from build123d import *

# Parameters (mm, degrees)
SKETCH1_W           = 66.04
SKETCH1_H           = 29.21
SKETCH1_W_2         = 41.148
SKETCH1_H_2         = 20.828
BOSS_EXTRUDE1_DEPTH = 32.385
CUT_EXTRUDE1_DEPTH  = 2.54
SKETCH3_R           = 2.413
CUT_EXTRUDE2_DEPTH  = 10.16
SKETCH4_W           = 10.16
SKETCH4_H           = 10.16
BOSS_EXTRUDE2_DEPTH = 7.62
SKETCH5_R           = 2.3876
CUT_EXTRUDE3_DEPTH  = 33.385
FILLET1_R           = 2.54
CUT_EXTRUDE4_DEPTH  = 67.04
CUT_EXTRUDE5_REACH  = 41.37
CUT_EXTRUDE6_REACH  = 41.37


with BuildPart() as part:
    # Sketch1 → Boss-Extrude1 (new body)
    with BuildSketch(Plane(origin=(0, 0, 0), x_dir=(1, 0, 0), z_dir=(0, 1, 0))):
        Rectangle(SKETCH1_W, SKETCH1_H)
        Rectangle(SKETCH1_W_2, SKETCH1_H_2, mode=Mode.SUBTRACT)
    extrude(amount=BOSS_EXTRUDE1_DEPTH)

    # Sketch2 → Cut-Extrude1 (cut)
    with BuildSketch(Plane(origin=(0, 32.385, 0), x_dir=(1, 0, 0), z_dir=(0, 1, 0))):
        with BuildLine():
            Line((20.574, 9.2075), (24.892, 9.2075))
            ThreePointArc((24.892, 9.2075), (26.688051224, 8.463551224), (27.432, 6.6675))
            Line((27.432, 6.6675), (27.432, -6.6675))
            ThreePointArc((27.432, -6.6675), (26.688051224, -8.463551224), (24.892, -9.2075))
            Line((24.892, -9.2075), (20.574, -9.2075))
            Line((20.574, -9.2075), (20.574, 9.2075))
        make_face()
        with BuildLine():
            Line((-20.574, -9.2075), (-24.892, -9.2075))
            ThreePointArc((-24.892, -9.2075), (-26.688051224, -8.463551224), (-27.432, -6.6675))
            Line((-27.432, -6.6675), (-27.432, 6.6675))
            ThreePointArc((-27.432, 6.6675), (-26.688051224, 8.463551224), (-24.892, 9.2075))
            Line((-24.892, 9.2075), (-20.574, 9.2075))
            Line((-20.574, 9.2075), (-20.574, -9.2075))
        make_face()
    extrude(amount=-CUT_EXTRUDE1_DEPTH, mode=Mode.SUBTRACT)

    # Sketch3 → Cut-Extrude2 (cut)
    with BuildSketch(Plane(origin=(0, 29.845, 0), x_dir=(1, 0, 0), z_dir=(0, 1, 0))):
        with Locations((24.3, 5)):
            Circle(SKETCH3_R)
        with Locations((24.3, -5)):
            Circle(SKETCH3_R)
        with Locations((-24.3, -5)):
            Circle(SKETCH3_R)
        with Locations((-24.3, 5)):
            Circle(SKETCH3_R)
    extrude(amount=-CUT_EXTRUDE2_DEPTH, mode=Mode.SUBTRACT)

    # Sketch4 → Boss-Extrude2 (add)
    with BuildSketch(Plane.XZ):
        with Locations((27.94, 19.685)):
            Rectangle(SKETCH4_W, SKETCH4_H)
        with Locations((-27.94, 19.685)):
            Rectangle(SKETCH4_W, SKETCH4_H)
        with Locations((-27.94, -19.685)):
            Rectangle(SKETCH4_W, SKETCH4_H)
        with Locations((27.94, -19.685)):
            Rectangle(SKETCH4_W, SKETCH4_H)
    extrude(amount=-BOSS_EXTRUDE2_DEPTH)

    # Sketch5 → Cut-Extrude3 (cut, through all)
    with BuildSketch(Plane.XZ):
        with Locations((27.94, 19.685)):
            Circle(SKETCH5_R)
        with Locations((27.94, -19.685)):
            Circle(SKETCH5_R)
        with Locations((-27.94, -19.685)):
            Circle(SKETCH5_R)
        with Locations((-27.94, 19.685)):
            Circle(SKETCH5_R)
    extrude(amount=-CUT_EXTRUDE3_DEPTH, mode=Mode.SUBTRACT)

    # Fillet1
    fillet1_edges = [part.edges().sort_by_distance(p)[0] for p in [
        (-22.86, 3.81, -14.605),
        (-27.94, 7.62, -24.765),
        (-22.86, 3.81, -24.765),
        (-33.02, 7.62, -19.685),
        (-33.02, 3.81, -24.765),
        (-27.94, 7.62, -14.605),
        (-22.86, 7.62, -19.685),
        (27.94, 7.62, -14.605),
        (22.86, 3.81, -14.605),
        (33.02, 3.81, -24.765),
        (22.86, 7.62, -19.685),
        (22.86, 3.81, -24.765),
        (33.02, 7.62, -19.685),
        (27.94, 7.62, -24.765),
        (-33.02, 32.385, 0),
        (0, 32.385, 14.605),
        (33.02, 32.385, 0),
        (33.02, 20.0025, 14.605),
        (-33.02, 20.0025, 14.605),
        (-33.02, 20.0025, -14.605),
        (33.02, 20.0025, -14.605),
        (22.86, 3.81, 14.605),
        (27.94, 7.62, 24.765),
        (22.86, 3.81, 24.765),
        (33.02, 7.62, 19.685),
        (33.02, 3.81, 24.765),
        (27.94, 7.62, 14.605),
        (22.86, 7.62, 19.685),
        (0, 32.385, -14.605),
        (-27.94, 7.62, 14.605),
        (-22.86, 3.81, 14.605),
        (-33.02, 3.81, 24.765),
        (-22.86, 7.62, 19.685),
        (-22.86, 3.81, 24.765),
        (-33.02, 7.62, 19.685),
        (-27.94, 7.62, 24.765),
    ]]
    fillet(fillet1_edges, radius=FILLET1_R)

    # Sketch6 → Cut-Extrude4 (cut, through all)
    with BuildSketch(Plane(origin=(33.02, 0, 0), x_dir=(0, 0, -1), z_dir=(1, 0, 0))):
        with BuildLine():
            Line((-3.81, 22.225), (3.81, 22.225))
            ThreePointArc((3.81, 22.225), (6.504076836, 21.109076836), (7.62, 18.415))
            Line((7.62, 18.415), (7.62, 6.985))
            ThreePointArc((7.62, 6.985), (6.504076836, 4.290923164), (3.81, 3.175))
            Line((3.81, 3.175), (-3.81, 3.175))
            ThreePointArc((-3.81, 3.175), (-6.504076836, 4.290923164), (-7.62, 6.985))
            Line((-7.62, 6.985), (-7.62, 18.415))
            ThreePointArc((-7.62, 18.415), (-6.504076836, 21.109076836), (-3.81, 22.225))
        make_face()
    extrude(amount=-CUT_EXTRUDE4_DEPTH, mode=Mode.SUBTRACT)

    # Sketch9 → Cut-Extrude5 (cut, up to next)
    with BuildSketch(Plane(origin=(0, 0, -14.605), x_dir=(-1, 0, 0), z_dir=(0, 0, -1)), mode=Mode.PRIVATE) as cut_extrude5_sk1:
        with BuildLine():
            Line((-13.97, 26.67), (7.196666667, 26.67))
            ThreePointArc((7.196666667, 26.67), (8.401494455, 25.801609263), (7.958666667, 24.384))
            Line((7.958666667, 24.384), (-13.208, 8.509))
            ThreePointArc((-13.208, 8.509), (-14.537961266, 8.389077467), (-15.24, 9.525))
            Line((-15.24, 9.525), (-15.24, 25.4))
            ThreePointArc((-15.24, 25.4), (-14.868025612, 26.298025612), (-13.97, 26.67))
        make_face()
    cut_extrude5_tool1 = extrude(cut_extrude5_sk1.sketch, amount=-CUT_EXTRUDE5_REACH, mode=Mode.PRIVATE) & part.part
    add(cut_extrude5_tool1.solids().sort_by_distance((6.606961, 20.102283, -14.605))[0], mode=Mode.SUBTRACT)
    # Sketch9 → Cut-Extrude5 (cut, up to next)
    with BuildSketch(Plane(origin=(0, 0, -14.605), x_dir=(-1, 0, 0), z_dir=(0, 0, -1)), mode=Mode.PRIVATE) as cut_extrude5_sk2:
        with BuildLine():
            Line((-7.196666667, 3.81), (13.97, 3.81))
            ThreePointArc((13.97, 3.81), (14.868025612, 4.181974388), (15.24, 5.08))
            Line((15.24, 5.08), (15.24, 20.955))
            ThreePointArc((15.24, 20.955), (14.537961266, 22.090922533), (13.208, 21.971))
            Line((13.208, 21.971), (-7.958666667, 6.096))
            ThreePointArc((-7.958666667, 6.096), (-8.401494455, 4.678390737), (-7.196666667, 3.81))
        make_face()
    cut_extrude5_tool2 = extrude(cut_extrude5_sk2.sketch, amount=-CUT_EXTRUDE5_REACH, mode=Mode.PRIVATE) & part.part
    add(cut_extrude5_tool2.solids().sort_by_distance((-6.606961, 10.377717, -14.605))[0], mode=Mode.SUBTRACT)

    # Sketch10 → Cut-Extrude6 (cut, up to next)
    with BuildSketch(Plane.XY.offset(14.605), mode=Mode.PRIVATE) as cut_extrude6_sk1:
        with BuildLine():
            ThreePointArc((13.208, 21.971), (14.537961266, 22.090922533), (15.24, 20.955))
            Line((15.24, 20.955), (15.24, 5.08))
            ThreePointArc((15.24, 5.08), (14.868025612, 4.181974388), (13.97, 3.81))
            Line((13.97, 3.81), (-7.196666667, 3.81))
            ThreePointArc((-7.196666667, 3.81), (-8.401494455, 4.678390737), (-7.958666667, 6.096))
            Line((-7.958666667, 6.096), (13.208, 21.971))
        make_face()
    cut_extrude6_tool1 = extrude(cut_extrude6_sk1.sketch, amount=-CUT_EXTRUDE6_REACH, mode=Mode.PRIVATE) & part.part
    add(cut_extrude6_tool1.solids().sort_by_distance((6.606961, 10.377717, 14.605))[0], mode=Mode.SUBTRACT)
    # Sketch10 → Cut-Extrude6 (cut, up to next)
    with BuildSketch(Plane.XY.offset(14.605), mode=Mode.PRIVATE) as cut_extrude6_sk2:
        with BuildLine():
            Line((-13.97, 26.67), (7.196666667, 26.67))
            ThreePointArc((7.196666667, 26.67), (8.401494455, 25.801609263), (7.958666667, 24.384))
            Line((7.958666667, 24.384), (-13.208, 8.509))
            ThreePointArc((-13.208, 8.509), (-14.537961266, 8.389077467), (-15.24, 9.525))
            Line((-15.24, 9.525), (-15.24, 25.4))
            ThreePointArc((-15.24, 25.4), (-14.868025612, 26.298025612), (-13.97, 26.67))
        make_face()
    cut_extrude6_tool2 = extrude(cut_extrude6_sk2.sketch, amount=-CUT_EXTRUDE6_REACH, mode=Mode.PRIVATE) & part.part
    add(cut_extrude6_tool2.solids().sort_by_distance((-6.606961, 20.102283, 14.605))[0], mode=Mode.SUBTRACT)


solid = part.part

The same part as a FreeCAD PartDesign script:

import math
import FreeCAD as App
import Part
import Sketcher
Q = App.Units.Quantity


def edges_at(feature, points):
    """Names of the edges that pass closest to the given points."""
    edges = feature.Shape.Edges
    near = lambda p: min(range(len(edges)), key=lambda i: edges[i].distToShape(Part.Vertex(*p))[0])
    return sorted({f"Edge{near(p) + 1}" for p in points})


def add_polygon(sketch, points):
    """Adds a closed chain of lines whose ends are joined by coincident constraints."""
    first, n = sketch.GeometryCount, len(points)
    for a, b in zip(points, points[1:] + points[:1]):
        sketch.addGeometry(Part.LineSegment(App.Vector(*a, 0), App.Vector(*b, 0)), False)
    for i in range(n):
        sketch.addConstraint(Sketcher.Constraint("Coincident", first + i, 2, first + (i + 1) % n, 1))

doc = App.newDocument("Part")
body = doc.addObject("PartDesign::Body", "Body")

# Sketch on XZ plane
sketch1 = body.newObject("Sketcher::SketchObject", "Sketch")
sketch1.AttachmentSupport = (doc.getObject("XZ_Plane"), [""])
sketch1.MapMode = "FlatFace"
add_polygon(sketch1, [(-33.02, -14.605), (-33.02, 14.605), (33.02, 14.605), (33.02, -14.605)])  # lines 0-3
add_polygon(sketch1, [(20.574, 10.414), (-20.574, 10.414), (-20.574, -10.414), (20.574, -10.414)])  # lines 4-7
sketch1.addConstraint([
    Sketcher.Constraint("Vertical", 0),
    Sketcher.Constraint("Horizontal", 1),
    Sketcher.Constraint("Vertical", 2),
    Sketcher.Constraint("Horizontal", 3),
    Sketcher.Constraint("Horizontal", 4),
    Sketcher.Constraint("Vertical", 5),
    Sketcher.Constraint("Horizontal", 6),
    Sketcher.Constraint("Vertical", 7),
    Sketcher.Constraint("Symmetric", 0, 2, 2, 2, -1, 1),
    Sketcher.Constraint("Symmetric", 4, 2, 6, 2, -1, 1),
    Sketcher.Constraint("DistanceX", 1, 1, 1, 2, Q("2.6 in")),
    Sketcher.Constraint("DistanceX", 4, 2, 4, 1, Q("1.62 in")),
    Sketcher.Constraint("DistanceY", 0, 1, 0, 2, Q("1.15 in")),
    Sketcher.Constraint("DistanceY", 5, 2, 5, 1, Q("0.82 in")),
])
pad1 = body.newObject("PartDesign::Pad", "Pad")
pad1.Profile = sketch1
pad1.Length = Q("1.275 in")
pad1.Reversed = True

# Sketch on XZ plane
sketch2 = body.newObject("Sketcher::SketchObject", "Sketch001")
sketch2.AttachmentSupport = (doc.getObject("XZ_Plane"), [""])
sketch2.MapMode = "FlatFace"
sketch2.AttachmentOffset = App.Placement(App.Vector(0, 0, -1.275 * 25.4), App.Rotation())
sketch2.addGeometry([
    Part.LineSegment(App.Vector(24.892, -9.2075, 0), App.Vector(20.574, -9.2075, 0)),  # 0
    Part.LineSegment(App.Vector(20.574, -9.2075, 0), App.Vector(20.574, 9.2075, 0)),  # 1
    Part.LineSegment(App.Vector(20.574, 9.2075, 0), App.Vector(24.892, 9.2075, 0)),  # 2
    Part.ArcOfCircle(Part.Circle(App.Vector(24.892, 6.6675, 0), App.Vector(0, 0, 1), 2.54), math.radians(0), math.radians(90)),  # 3
    Part.LineSegment(App.Vector(27.432, 6.6675, 0), App.Vector(27.432, -6.6675, 0)),  # 4
    Part.ArcOfCircle(Part.Circle(App.Vector(24.892, -6.6675, 0), App.Vector(0, 0, 1), 2.54), math.radians(-90), math.radians(0)),  # 5
    Part.LineSegment(App.Vector(-24.892, 9.2075, 0), App.Vector(-20.574, 9.2075, 0)),  # 6
    Part.LineSegment(App.Vector(-20.574, 9.2075, 0), App.Vector(-20.574, -9.2075, 0)),  # 7
    Part.LineSegment(App.Vector(-20.574, -9.2075, 0), App.Vector(-24.892, -9.2075, 0)),  # 8
    Part.ArcOfCircle(Part.Circle(App.Vector(-24.892, -6.6675, 0), App.Vector(0, 0, 1), 2.54), math.radians(-180), math.radians(-90)),  # 9
    Part.LineSegment(App.Vector(-27.432, -6.6675, 0), App.Vector(-27.432, 6.6675, 0)),  # 10
    Part.ArcOfCircle(Part.Circle(App.Vector(-24.892, 6.6675, 0), App.Vector(0, 0, 1), 2.54), math.radians(90), math.radians(180)),  # 11
], False)
sketch2.addConstraint([
    Sketcher.Constraint("Coincident", 0, 2, 1, 1),
    Sketcher.Constraint("Coincident", 1, 2, 2, 1),
    Sketcher.Constraint("Tangent", 2, 2, 3, 2),
    Sketcher.Constraint("Tangent", 3, 1, 4, 1),
    Sketcher.Constraint("Tangent", 4, 2, 5, 2),
    Sketcher.Constraint("Tangent", 5, 1, 0, 1),
    Sketcher.Constraint("Coincident", 6, 2, 7, 1),
    Sketcher.Constraint("Coincident", 7, 2, 8, 1),
    Sketcher.Constraint("Tangent", 8, 2, 9, 2),
    Sketcher.Constraint("Tangent", 9, 1, 10, 1),
    Sketcher.Constraint("Tangent", 10, 2, 11, 2),
    Sketcher.Constraint("Tangent", 11, 1, 6, 1),
    Sketcher.Constraint("Horizontal", 0),
    Sketcher.Constraint("Vertical", 1),
    Sketcher.Constraint("Horizontal", 2),
    Sketcher.Constraint("Vertical", 4),
    Sketcher.Constraint("Horizontal", 6),
    Sketcher.Constraint("Vertical", 7),
    Sketcher.Constraint("Horizontal", 8),
    Sketcher.Constraint("Vertical", 10),
    Sketcher.Constraint("Equal", 3, 5),
    Sketcher.Constraint("Equal", 5, 9),
    Sketcher.Constraint("Equal", 9, 11),
    Sketcher.Constraint("Symmetric", 3, 3, 9, 3, -1, 1),
    Sketcher.Constraint("Symmetric", 0, 2, 6, 2, -1, 1),
    Sketcher.Constraint("Horizontal", 5, 3, 9, 3),
    Sketcher.Constraint("Radius", 3, Q("0.1 in")),
    Sketcher.Constraint("DistanceX", 0, 2, 0, 1, Q("0.17 in")),
    Sketcher.Constraint("DistanceY", 1, 1, 1, 2, Q("0.725 in")),
    Sketcher.Constraint("DistanceX", -1, 1, 3, 3, Q("0.98 in")),
])
pocket1 = body.newObject("PartDesign::Pocket", "Pocket")
pocket1.Profile = sketch2
pocket1.Length = Q("0.1 in")
pocket1.Reversed = True

# Sketch on XZ plane
sketch3 = body.newObject("Sketcher::SketchObject", "Sketch002")
sketch3.AttachmentSupport = (doc.getObject("XZ_Plane"), [""])
sketch3.MapMode = "FlatFace"
sketch3.AttachmentOffset = App.Placement(App.Vector(0, 0, -1.175 * 25.4), App.Rotation())
sketch3.addGeometry([
    Part.Circle(App.Vector(24.3, -5, 0), App.Vector(0, 0, 1), 2.413),
    Part.Circle(App.Vector(24.3, 5, 0), App.Vector(0, 0, 1), 2.413),
    Part.Circle(App.Vector(-24.3, 5, 0), App.Vector(0, 0, 1), 2.413),
    Part.Circle(App.Vector(-24.3, -5, 0), App.Vector(0, 0, 1), 2.413),
], False)
sketch3.addConstraint([
    Sketcher.Constraint("Equal", 0, 1),
    Sketcher.Constraint("Equal", 1, 2),
    Sketcher.Constraint("Equal", 2, 3),
    Sketcher.Constraint("Symmetric", 0, 3, 2, 3, -1, 1),
    Sketcher.Constraint("Symmetric", 1, 3, 3, 3, -1, 1),
    Sketcher.Constraint("Symmetric", 1, 3, 2, 3, -2),
    Sketcher.Constraint("Diameter", 0, Q("0.19 in")),
    Sketcher.Constraint("DistanceX", -1, 1, 0, 3, 24.3),
    Sketcher.Constraint("DistanceY", 0, 3, -1, 1, 5.0),
])
pocket2 = body.newObject("PartDesign::Pocket", "Pocket001")
pocket2.Profile = sketch3
pocket2.Length = Q("0.4 in")
pocket2.Reversed = True

# Sketch on XZ plane
sketch4 = body.newObject("Sketcher::SketchObject", "Sketch003")
sketch4.AttachmentSupport = (doc.getObject("XZ_Plane"), [""])
sketch4.MapMode = "FlatFace"
add_polygon(sketch4, [(22.86, 24.765), (22.86, 14.605), (33.02, 14.605), (33.02, 24.765)])  # lines 0-3
add_polygon(sketch4, [(-33.02, 24.765), (-33.02, 14.605), (-22.86, 14.605), (-22.86, 24.765)])  # lines 4-7
add_polygon(sketch4, [(-33.02, -14.605), (-33.02, -24.765), (-22.86, -24.765), (-22.86, -14.605)])  # lines 8-11
add_polygon(sketch4, [(22.86, -14.605), (22.86, -24.765), (33.02, -24.765), (33.02, -14.605)])  # lines 12-15
sketch4.addConstraint([
    Sketcher.Constraint("Vertical", 0),
    Sketcher.Constraint("Horizontal", 1),
    Sketcher.Constraint("Vertical", 2),
    Sketcher.Constraint("Horizontal", 3),
    Sketcher.Constraint("Vertical", 4),
    Sketcher.Constraint("Horizontal", 5),
    Sketcher.Constraint("Vertical", 6),
    Sketcher.Constraint("Horizontal", 7),
    Sketcher.Constraint("Vertical", 8),
    Sketcher.Constraint("Horizontal", 9),
    Sketcher.Constraint("Vertical", 10),
    Sketcher.Constraint("Horizontal", 11),
    Sketcher.Constraint("Vertical", 12),
    Sketcher.Constraint("Horizontal", 13),
    Sketcher.Constraint("Vertical", 14),
    Sketcher.Constraint("Horizontal", 15),
    Sketcher.Constraint("Symmetric", 2, 2, 8, 2, -1, 1),
    Sketcher.Constraint("Symmetric", 0, 2, 10, 2, -1, 1),
    Sketcher.Constraint("Symmetric", 6, 2, 12, 2, -1, 1),
    Sketcher.Constraint("Symmetric", 4, 2, 14, 2, -1, 1),
    Sketcher.Constraint("Symmetric", 1, 2, 4, 2, -2),
    Sketcher.Constraint("Symmetric", 3, 2, 6, 2, -2),
    Sketcher.Constraint("Equal", 15, 0),
    Sketcher.Constraint("DistanceX", 1, 1, 1, 2, Q("0.4 in")),
    Sketcher.Constraint("DistanceX", -1, 1, 0, 2, Q("0.9 in")),
    Sketcher.Constraint("DistanceY", 8, 2, 4, 2, Q("1.55 in")),
])
pad2 = body.newObject("PartDesign::Pad", "Pad001")
pad2.Profile = sketch4
pad2.Length = Q("0.3 in")
pad2.Reversed = True

# Sketch on XZ plane
sketch5 = body.newObject("Sketcher::SketchObject", "Sketch004")
sketch5.AttachmentSupport = (doc.getObject("XZ_Plane"), [""])
sketch5.MapMode = "FlatFace"
sketch5.addGeometry([
    Part.Circle(App.Vector(27.94, 19.685, 0), App.Vector(0, 0, 1), 2.3876),
    Part.Circle(App.Vector(27.94, -19.685, 0), App.Vector(0, 0, 1), 2.3876),
    Part.Circle(App.Vector(-27.94, -19.685, 0), App.Vector(0, 0, 1), 2.3876),
    Part.Circle(App.Vector(-27.94, 19.685, 0), App.Vector(0, 0, 1), 2.3876),
], False)
sketch5.addConstraint([
    Sketcher.Constraint("Equal", 0, 1),
    Sketcher.Constraint("Equal", 1, 2),
    Sketcher.Constraint("Equal", 2, 3),
    Sketcher.Constraint("Symmetric", 0, 3, 2, 3, -1, 1),
    Sketcher.Constraint("Symmetric", 1, 3, 3, 3, -1, 1),
    Sketcher.Constraint("Symmetric", 1, 3, 2, 3, -2),
    Sketcher.Constraint("Diameter", 0, Q("0.188 in")),
    Sketcher.Constraint("DistanceX", -1, 1, 0, 3, Q("1.1 in")),
    Sketcher.Constraint("DistanceY", 1, 3, 0, 3, Q("1.55 in")),
])
pocket3 = body.newObject("PartDesign::Pocket", "Pocket002")
pocket3.Profile = sketch5
pocket3.Type = "ThroughAll"
doc.recompute()

fillet = body.newObject("PartDesign::Fillet", "Fillet")
fillet.Base = (pocket3, edges_at(pocket3, [
    (-22.86, 3.81, -14.605),
    (-27.94, 7.62, -24.765),
    (-22.86, 3.81, -24.765),
    (-33.02, 7.62, -19.685),
    (-33.02, 3.81, -24.765),
    (-27.94, 7.62, -14.605),
    (-22.86, 7.62, -19.685),
    (27.94, 7.62, -14.605),
    (22.86, 3.81, -14.605),
    (33.02, 3.81, -24.765),
    (22.86, 7.62, -19.685),
    (22.86, 3.81, -24.765),
    (33.02, 7.62, -19.685),
    (27.94, 7.62, -24.765),
    (-33.02, 32.385, 0),
    (0, 32.385, 14.605),
    (33.02, 32.385, 0),
    (33.02, 20.003, 14.605),
    (-33.02, 20.003, 14.605),
    (-33.02, 20.003, -14.605),
    (33.02, 20.003, -14.605),
    (22.86, 3.81, 14.605),
    (27.94, 7.62, 24.765),
    (22.86, 3.81, 24.765),
    (33.02, 7.62, 19.685),
    (33.02, 3.81, 24.765),
    (27.94, 7.62, 14.605),
    (22.86, 7.62, 19.685),
    (0, 32.385, -14.605),
    (-27.94, 7.62, 14.605),
    (-22.86, 3.81, 14.605),
    (-33.02, 3.81, 24.765),
    (-22.86, 7.62, 19.685),
    (-22.86, 3.81, 24.765),
    (-33.02, 7.62, 19.685),
    (-27.94, 7.62, 24.765),
]))
fillet.Radius = Q("0.1 in")

# Sketch on YZ plane
sketch6 = body.newObject("Sketcher::SketchObject", "Sketch005")
sketch6.AttachmentSupport = (doc.getObject("YZ_Plane"), [""])
sketch6.MapMode = "FlatFace"
sketch6.AttachmentOffset = App.Placement(App.Vector(0, 0, 1.3 * 25.4), App.Rotation())
sketch6.addGeometry([
    Part.LineSegment(App.Vector(22.225, -3.81, 0), App.Vector(22.225, 3.81, 0)),  # 0
    Part.ArcOfCircle(Part.Circle(App.Vector(18.415, 3.81, 0), App.Vector(0, 0, 1), 3.81), math.radians(0), math.radians(90)),  # 1
    Part.LineSegment(App.Vector(18.415, 7.62, 0), App.Vector(6.985, 7.62, 0)),  # 2
    Part.ArcOfCircle(Part.Circle(App.Vector(6.985, 3.81, 0), App.Vector(0, 0, 1), 3.81), math.radians(90), math.radians(180)),  # 3
    Part.LineSegment(App.Vector(3.175, 3.81, 0), App.Vector(3.175, -3.81, 0)),  # 4
    Part.ArcOfCircle(Part.Circle(App.Vector(6.985, -3.81, 0), App.Vector(0, 0, 1), 3.81), math.radians(-180), math.radians(-90)),  # 5
    Part.LineSegment(App.Vector(6.985, -7.62, 0), App.Vector(18.415, -7.62, 0)),  # 6
    Part.ArcOfCircle(Part.Circle(App.Vector(18.415, -3.81, 0), App.Vector(0, 0, 1), 3.81), math.radians(-90), math.radians(0)),  # 7
], False)
sketch6.addConstraint([
    Sketcher.Constraint("Tangent", 0, 2, 1, 1),
    Sketcher.Constraint("Tangent", 1, 2, 2, 1),
    Sketcher.Constraint("Tangent", 2, 2, 3, 1),
    Sketcher.Constraint("Tangent", 3, 2, 4, 1),
    Sketcher.Constraint("Tangent", 4, 2, 5, 1),
    Sketcher.Constraint("Tangent", 5, 2, 6, 1),
    Sketcher.Constraint("Tangent", 6, 2, 7, 1),
    Sketcher.Constraint("Tangent", 7, 2, 0, 1),
    Sketcher.Constraint("Vertical", 0),
    Sketcher.Constraint("Horizontal", 2),
    Sketcher.Constraint("Vertical", 4),
    Sketcher.Constraint("Horizontal", 6),
    Sketcher.Constraint("Equal", 1, 3),
    Sketcher.Constraint("Equal", 3, 5),
    Sketcher.Constraint("Equal", 5, 7),
    Sketcher.Constraint("Radius", 1, Q("0.15 in")),
    Sketcher.Constraint("DistanceY", 0, 1, 0, 2, Q("0.3 in")),
    Sketcher.Constraint("DistanceX", 2, 2, 2, 1, Q("0.45 in")),
    Sketcher.Constraint("DistanceY", -1, 1, 1, 2, Q("0.3 in")),
    Sketcher.Constraint("DistanceX", -1, 1, 1, 3, Q("0.725 in")),
])
pocket4 = body.newObject("PartDesign::Pocket", "Pocket003")
pocket4.Profile = sketch6
pocket4.Type = "ThroughAll"

# Sketch on XY plane
sketch7 = body.newObject("Sketcher::SketchObject", "Sketch006")
sketch7.AttachmentSupport = (doc.getObject("XY_Plane"), [""])
sketch7.MapMode = "FlatFace"
sketch7.AttachmentOffset = App.Placement(App.Vector(0, 0, -0.575 * 25.4), App.Rotation())
sketch7.addGeometry([
    Part.LineSegment(App.Vector(-7.196667, 26.67, 0), App.Vector(13.97, 26.67, 0)),  # 0
    Part.ArcOfCircle(Part.Circle(App.Vector(13.97, 25.4, 0), App.Vector(0, 0, 1), 1.27), math.radians(0), math.radians(90)),  # 1
    Part.LineSegment(App.Vector(15.24, 25.4, 0), App.Vector(15.24, 9.525, 0)),  # 2
    Part.ArcOfCircle(Part.Circle(App.Vector(13.97, 9.525, 0), App.Vector(0, 0, 1), 1.27), math.radians(-126.869898), math.radians(0)),  # 3
    Part.LineSegment(App.Vector(13.208, 8.509, 0), App.Vector(-7.958667, 24.384, 0)),  # 4
    Part.ArcOfCircle(Part.Circle(App.Vector(-7.196667, 25.4, 0), App.Vector(0, 0, 1), 1.27), math.radians(90), math.radians(233.130102)),  # 5
], False)
sketch7.addConstraint([
    Sketcher.Constraint("Tangent", 0, 2, 1, 2),
    Sketcher.Constraint("Tangent", 1, 1, 2, 1),
    Sketcher.Constraint("Tangent", 2, 2, 3, 2),
    Sketcher.Constraint("Tangent", 3, 1, 4, 1),
    Sketcher.Constraint("Tangent", 4, 2, 5, 2),
    Sketcher.Constraint("Tangent", 5, 1, 0, 1),
    Sketcher.Constraint("Horizontal", 0),
    Sketcher.Constraint("Vertical", 2),
    Sketcher.Constraint("Equal", 1, 3),
    Sketcher.Constraint("Equal", 3, 5),
    Sketcher.Constraint("Radius", 1, Q("0.05 in")),
    Sketcher.Constraint("DistanceY", -1, 1, 1, 3, Q("1 in")),
    Sketcher.Constraint("DistanceX", -1, 1, 1, 1, Q("0.6 in")),
    Sketcher.Constraint("DistanceY", 2, 2, 2, 1, Q("0.625 in")),
    Sketcher.Constraint("DistanceX", -1, 1, 3, 1, Q("0.52 in")),
])
pocket5 = body.newObject("PartDesign::Pocket", "Pocket004")
pocket5.Profile = sketch7
pocket5.Type = "UpToFirst"
pocket5.Reversed = True

# Sketch on XY plane
sketch8 = body.newObject("Sketcher::SketchObject", "Sketch007")
sketch8.AttachmentSupport = (doc.getObject("XY_Plane"), [""])
sketch8.MapMode = "FlatFace"
sketch8.AttachmentOffset = App.Placement(App.Vector(0, 0, -0.575 * 25.4), App.Rotation())
sketch8.addGeometry([
    Part.LineSegment(App.Vector(7.196667, 3.81, 0), App.Vector(-13.97, 3.81, 0)),  # 0
    Part.ArcOfCircle(Part.Circle(App.Vector(-13.97, 5.08, 0), App.Vector(0, 0, 1), 1.27), math.radians(180), math.radians(270)),  # 1
    Part.LineSegment(App.Vector(-15.24, 5.08, 0), App.Vector(-15.24, 20.955, 0)),  # 2
    Part.ArcOfCircle(Part.Circle(App.Vector(-13.97, 20.955, 0), App.Vector(0, 0, 1), 1.27), math.radians(53.130102), math.radians(180)),  # 3
    Part.LineSegment(App.Vector(-13.208, 21.971, 0), App.Vector(7.958667, 6.096, 0)),  # 4
    Part.ArcOfCircle(Part.Circle(App.Vector(7.196667, 5.08, 0), App.Vector(0, 0, 1), 1.27), math.radians(-90), math.radians(53.130102)),  # 5
], False)
sketch8.addConstraint([
    Sketcher.Constraint("Tangent", 0, 2, 1, 2),
    Sketcher.Constraint("Tangent", 1, 1, 2, 1),
    Sketcher.Constraint("Tangent", 2, 2, 3, 2),
    Sketcher.Constraint("Tangent", 3, 1, 4, 1),
    Sketcher.Constraint("Tangent", 4, 2, 5, 2),
    Sketcher.Constraint("Tangent", 5, 1, 0, 1),
    Sketcher.Constraint("Horizontal", 0),
    Sketcher.Constraint("Vertical", 2),
    Sketcher.Constraint("Equal", 1, 3),
    Sketcher.Constraint("Equal", 3, 5),
    Sketcher.Constraint("Radius", 1, Q("0.05 in")),
    Sketcher.Constraint("DistanceY", -1, 1, 1, 3, Q("0.2 in")),
    Sketcher.Constraint("DistanceX", 1, 1, -1, 1, Q("0.6 in")),
    Sketcher.Constraint("DistanceY", 2, 1, 2, 2, Q("0.625 in")),
    Sketcher.Constraint("DistanceX", 3, 1, -1, 1, Q("0.52 in")),
])
pocket6 = body.newObject("PartDesign::Pocket", "Pocket005")
pocket6.Profile = sketch8
pocket6.Type = "UpToFirst"
pocket6.Reversed = True

# Sketch on XY plane
sketch9 = body.newObject("Sketcher::SketchObject", "Sketch008")
sketch9.AttachmentSupport = (doc.getObject("XY_Plane"), [""])
sketch9.MapMode = "FlatFace"
sketch9.AttachmentOffset = App.Placement(App.Vector(0, 0, 0.575 * 25.4), App.Rotation())
sketch9.addGeometry([
    Part.ArcOfCircle(Part.Circle(App.Vector(13.97, 20.955, 0), App.Vector(0, 0, 1), 1.27), math.radians(0), math.radians(126.869898)),  # 0
    Part.LineSegment(App.Vector(13.208, 21.971, 0), App.Vector(-7.958667, 6.096, 0)),  # 1
    Part.ArcOfCircle(Part.Circle(App.Vector(-7.196667, 5.08, 0), App.Vector(0, 0, 1), 1.27), math.radians(126.869898), math.radians(270)),  # 2
    Part.LineSegment(App.Vector(-7.196667, 3.81, 0), App.Vector(13.97, 3.81, 0)),  # 3
    Part.ArcOfCircle(Part.Circle(App.Vector(13.97, 5.08, 0), App.Vector(0, 0, 1), 1.27), math.radians(-90), math.radians(0)),  # 4
    Part.LineSegment(App.Vector(15.24, 5.08, 0), App.Vector(15.24, 20.955, 0)),  # 5
], False)
sketch9.addConstraint([
    Sketcher.Constraint("Tangent", 0, 2, 1, 1),
    Sketcher.Constraint("Tangent", 1, 2, 2, 1),
    Sketcher.Constraint("Tangent", 2, 2, 3, 1),
    Sketcher.Constraint("Tangent", 3, 2, 4, 1),
    Sketcher.Constraint("Tangent", 4, 2, 5, 1),
    Sketcher.Constraint("Tangent", 5, 2, 0, 1),
    Sketcher.Constraint("Horizontal", 3),
    Sketcher.Constraint("Vertical", 5),
    Sketcher.Constraint("Equal", 0, 2),
    Sketcher.Constraint("Equal", 2, 4),
    Sketcher.Constraint("Radius", 0, Q("0.05 in")),
    Sketcher.Constraint("DistanceY", -1, 1, 2, 3, Q("0.2 in")),
    Sketcher.Constraint("DistanceX", -1, 1, 4, 2, Q("0.6 in")),
    Sketcher.Constraint("DistanceY", 5, 1, 5, 2, Q("0.625 in")),
    Sketcher.Constraint("DistanceX", -1, 1, 0, 2, Q("0.52 in")),
])
pocket7 = body.newObject("PartDesign::Pocket", "Pocket006")
pocket7.Profile = sketch9
pocket7.Type = "UpToFirst"

# Sketch on XY plane
sketch10 = body.newObject("Sketcher::SketchObject", "Sketch009")
sketch10.AttachmentSupport = (doc.getObject("XY_Plane"), [""])
sketch10.MapMode = "FlatFace"
sketch10.AttachmentOffset = App.Placement(App.Vector(0, 0, 0.575 * 25.4), App.Rotation())
sketch10.addGeometry([
    Part.LineSegment(App.Vector(7.196667, 26.67, 0), App.Vector(-13.97, 26.67, 0)),  # 0
    Part.ArcOfCircle(Part.Circle(App.Vector(-13.97, 25.4, 0), App.Vector(0, 0, 1), 1.27), math.radians(90), math.radians(180)),  # 1
    Part.LineSegment(App.Vector(-15.24, 25.4, 0), App.Vector(-15.24, 9.525, 0)),  # 2
    Part.ArcOfCircle(Part.Circle(App.Vector(-13.97, 9.525, 0), App.Vector(0, 0, 1), 1.27), math.radians(180), math.radians(306.869898)),  # 3
    Part.LineSegment(App.Vector(-13.208, 8.509, 0), App.Vector(7.958667, 24.384, 0)),  # 4
    Part.ArcOfCircle(Part.Circle(App.Vector(7.196667, 25.4, 0), App.Vector(0, 0, 1), 1.27), math.radians(-53.130102), math.radians(90)),  # 5
], False)
sketch10.addConstraint([
    Sketcher.Constraint("Tangent", 0, 2, 1, 1),
    Sketcher.Constraint("Tangent", 1, 2, 2, 1),
    Sketcher.Constraint("Tangent", 2, 2, 3, 1),
    Sketcher.Constraint("Tangent", 3, 2, 4, 1),
    Sketcher.Constraint("Tangent", 4, 2, 5, 1),
    Sketcher.Constraint("Tangent", 5, 2, 0, 1),
    Sketcher.Constraint("Horizontal", 0),
    Sketcher.Constraint("Vertical", 2),
    Sketcher.Constraint("Equal", 1, 3),
    Sketcher.Constraint("Equal", 3, 5),
    Sketcher.Constraint("Radius", 1, Q("0.05 in")),
    Sketcher.Constraint("DistanceY", -1, 1, 1, 3, Q("1 in")),
    Sketcher.Constraint("DistanceX", 1, 2, -1, 1, Q("0.6 in")),
    Sketcher.Constraint("DistanceY", 2, 2, 2, 1, Q("0.625 in")),
    Sketcher.Constraint("DistanceX", 3, 2, -1, 1, Q("0.52 in")),
])
pocket8 = body.newObject("PartDesign::Pocket", "Pocket007")
pocket8.Profile = sketch10
pocket8.Type = "UpToFirst"

doc.recompute()
